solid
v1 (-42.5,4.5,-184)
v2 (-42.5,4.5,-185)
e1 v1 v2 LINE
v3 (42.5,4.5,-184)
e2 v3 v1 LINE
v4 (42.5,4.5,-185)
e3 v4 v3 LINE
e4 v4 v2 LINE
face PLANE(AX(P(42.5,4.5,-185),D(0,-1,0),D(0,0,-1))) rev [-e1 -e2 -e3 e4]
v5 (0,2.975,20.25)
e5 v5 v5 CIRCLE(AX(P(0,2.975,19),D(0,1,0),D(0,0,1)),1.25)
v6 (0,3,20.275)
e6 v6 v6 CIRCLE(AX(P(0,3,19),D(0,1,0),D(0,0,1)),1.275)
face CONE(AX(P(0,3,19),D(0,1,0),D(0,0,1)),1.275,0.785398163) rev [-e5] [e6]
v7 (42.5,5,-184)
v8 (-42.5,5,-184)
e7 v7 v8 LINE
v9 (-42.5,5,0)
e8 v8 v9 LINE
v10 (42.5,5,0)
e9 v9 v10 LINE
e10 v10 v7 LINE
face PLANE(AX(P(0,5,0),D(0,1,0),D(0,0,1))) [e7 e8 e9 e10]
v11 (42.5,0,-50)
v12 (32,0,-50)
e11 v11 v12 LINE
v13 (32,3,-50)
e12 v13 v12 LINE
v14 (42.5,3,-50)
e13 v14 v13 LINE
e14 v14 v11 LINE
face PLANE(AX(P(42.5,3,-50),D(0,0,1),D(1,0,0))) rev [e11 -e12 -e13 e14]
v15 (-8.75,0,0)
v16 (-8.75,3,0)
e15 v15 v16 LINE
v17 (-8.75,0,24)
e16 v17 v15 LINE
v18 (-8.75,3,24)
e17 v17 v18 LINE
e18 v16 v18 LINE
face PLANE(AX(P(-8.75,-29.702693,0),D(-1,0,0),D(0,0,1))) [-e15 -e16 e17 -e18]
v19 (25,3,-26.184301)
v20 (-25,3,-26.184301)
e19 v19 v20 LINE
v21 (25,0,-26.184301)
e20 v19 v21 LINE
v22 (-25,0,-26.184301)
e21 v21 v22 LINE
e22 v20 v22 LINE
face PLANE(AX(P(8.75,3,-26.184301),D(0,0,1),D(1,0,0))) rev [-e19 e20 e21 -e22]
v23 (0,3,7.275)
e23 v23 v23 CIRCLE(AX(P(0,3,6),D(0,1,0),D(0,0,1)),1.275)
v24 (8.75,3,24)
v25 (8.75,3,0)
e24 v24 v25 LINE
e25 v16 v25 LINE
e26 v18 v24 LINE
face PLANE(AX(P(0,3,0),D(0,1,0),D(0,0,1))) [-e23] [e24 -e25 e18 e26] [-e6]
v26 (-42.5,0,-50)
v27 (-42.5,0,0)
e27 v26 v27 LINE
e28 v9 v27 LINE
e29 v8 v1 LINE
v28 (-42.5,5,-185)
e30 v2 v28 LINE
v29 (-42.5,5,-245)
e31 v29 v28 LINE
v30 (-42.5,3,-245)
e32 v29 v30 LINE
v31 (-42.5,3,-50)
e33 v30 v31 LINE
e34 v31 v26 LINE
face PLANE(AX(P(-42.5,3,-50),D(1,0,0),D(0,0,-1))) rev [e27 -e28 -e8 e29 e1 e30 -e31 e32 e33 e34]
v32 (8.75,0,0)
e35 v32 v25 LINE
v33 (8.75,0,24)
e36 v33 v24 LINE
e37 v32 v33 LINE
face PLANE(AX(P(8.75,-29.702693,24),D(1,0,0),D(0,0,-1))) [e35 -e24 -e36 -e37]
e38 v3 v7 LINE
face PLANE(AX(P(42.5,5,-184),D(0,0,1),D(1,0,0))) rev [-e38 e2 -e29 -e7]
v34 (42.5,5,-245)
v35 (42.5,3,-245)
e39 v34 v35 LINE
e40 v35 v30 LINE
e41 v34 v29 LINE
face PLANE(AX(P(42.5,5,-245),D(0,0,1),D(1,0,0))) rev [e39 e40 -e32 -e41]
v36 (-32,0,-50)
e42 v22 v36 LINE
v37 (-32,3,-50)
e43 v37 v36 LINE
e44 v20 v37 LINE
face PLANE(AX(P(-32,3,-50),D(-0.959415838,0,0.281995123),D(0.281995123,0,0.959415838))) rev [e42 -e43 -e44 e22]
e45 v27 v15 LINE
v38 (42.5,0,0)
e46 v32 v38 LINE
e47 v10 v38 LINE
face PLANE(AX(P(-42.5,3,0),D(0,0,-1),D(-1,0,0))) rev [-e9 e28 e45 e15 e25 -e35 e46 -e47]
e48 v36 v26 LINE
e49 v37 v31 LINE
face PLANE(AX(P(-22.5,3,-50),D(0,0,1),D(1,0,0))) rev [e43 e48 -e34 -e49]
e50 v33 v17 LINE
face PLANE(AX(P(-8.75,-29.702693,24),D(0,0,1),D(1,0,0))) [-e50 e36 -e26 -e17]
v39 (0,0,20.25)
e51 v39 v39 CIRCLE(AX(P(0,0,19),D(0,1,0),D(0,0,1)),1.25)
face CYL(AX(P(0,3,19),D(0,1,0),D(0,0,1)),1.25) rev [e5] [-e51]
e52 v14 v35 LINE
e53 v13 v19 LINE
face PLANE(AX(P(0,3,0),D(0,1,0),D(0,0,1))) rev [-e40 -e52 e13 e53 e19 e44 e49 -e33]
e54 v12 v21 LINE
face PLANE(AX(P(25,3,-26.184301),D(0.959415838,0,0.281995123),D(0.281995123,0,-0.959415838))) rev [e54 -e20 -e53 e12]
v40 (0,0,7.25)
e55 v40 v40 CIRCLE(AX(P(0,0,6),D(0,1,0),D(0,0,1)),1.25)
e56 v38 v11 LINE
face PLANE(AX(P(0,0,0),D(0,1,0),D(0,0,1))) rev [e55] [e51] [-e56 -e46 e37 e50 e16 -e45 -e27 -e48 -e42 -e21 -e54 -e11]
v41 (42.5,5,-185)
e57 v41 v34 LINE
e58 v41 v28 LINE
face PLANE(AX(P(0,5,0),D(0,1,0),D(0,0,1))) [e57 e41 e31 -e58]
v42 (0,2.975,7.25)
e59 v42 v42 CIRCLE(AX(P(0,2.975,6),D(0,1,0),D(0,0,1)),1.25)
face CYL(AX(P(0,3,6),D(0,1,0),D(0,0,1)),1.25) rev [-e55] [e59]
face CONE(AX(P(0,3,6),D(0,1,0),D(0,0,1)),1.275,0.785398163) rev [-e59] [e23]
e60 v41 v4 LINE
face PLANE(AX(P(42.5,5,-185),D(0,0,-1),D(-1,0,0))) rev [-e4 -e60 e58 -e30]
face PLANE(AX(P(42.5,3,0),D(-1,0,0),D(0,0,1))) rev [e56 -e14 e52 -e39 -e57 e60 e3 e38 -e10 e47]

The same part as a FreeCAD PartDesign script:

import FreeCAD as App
import Part
import Sketcher
from FreeCAD import Vector
Q = App.Units.Quantity


def add_polygon(sketch, points):
    """Adds a closed chain of lines whose ends are joined by coincident constraints."""
    first, n = sketch.GeometryCount, len(points)
    for a, b in zip(points, points[1:] + points[:1]):
        sketch.addGeometry(Part.LineSegment(App.Vector(*a, 0), App.Vector(*b, 0)), False)
    for i in range(n):
        sketch.addConstraint(Sketcher.Constraint("Coincident", first + i, 2, first + (i + 1) % n, 1))

doc = App.newDocument("Part")
body = doc.addObject("PartDesign::Body", "Body")

sketch1 = body.newObject("Sketcher::SketchObject", "Sketch")
sketch1.AttachmentSupport = (doc.getObject("XZ_Plane"), [""])
sketch1.MapMode = "FlatFace"
add_polygon(sketch1, [(42, 0), (42, -50), (22, -50), (9, -26), (-9, -26), (-22, -50), (-42, -50), (-42, 0)])
sketch1.addConstraint([
    Sketcher.Constraint("Vertical", 0),
    Sketcher.Constraint("Horizontal", 1),
    Sketcher.Constraint("Horizontal", 3),
    Sketcher.Constraint("Horizontal", 5),
    Sketcher.Constraint("Vertical", 6),
    Sketcher.Constraint("Horizontal", 7),
    Sketcher.Constraint("Symmetric", 6, 2, 7, 2, -1, 1),
    Sketcher.Constraint("Symmetric", 1, 2, 4, 2, -2),
    Sketcher.Constraint("Equal", 2, 4),
    Sketcher.Constraint("DistanceX", 1, 2, 1, 1, Q("20 mm")),
    Sketcher.Constraint("DistanceX", 7, 1, 7, 2, Q("85 mm")),
    Sketcher.Constraint("DistanceY", 0, 2, 0, 1, Q("50 mm")),
    Sketcher.Constraint("Angle", 2, Q("120 deg")),
    Sketcher.Constraint("DistanceX", 3, 2, 3, 1, Q("17.5 mm")),
])
pad1 = body.newObject("PartDesign::Pad", "Pad")
pad1.Profile = sketch1
pad1.Length = 3
pad1.Reversed = True

sketch2 = body.newObject("Sketcher::SketchObject", "Sketch001")
sketch2.AttachmentSupport = (doc.getObject("XZ_Plane"), [""])
sketch2.MapMode = "FlatFace"
sketch2.AttachmentOffset = App.Placement(Vector(0, 0, -3), App.Rotation())
add_polygon(sketch2, [(-9, 0), (-9, 24), (9, 24), (9, 0)])
sketch2.addConstraint([
    Sketcher.Constraint("Vertical", 0),
    Sketcher.Constraint("Horizontal", 1),
    Sketcher.Constraint("Vertical", 2),
    Sketcher.Constraint("Horizontal", 3),
    Sketcher.Constraint("Symmetric", 2, 2, 3, 2, -1, 1),
    Sketcher.Constraint("DistanceY", 0, 1, 0, 2, Q("24 mm")),
    Sketcher.Constraint("DistanceX", 1, 1, 1, 2, Q("17.5 mm")),
])
pad2 = body.newObject("PartDesign::Pad", "Pad001")
pad2.Profile = sketch2
pad2.Length = 3

sketch3 = body.newObject("Sketcher::SketchObject", "Sketch002")
sketch3.AttachmentSupport = (doc.getObject("XZ_Plane"), [""])
sketch3.MapMode = "FlatFace"
sketch3.AttachmentOffset = App.Placement(Vector(0, 0, -3), App.Rotation())
sketch3.addGeometry([
    Part.Circle(Vector(0, 19, 0), Vector(0, 0, 1), 1.2),
    Part.Circle(Vector(0, 6, 0), Vector(0, 0, 1), 1.2),
], False)
sketch3.addConstraint([
    Sketcher.Constraint("Equal", 0, 1),
    Sketcher.Constraint("PointOnObject", 0, 3, -2),
    Sketcher.Constraint("PointOnObject", 1, 3, -2),
    Sketcher.Constraint("Diameter", 0, Q("2.5 mm")),
    Sketcher.Constraint("DistanceY", -1, 1, 0, 3, Q("19 mm")),
    Sketcher.Constraint("DistanceY", -1, 1, 1, 3, Q("6 mm")),
])
doc.recompute()
hole = body.newObject("PartDesign::Hole", "Hole")
hole.Profile = sketch3
hole.ThreadType = "None"
hole.Diameter = 2.5
hole.DepthType = "Dimension"
hole.Depth = 6.35
hole.DrillPoint = "Angled"
hole.DrillPointAngle = 118
hole.HoleCutType = "Countersink"
hole.HoleCutDiameter = 2.55
hole.HoleCutCountersinkAngle = 90
hole.Reversed = True

sketch4 = body.newObject("Sketcher::SketchObject", "Sketch003")
sketch4.AttachmentSupport = (doc.getObject("XZ_Plane"), [""])
sketch4.MapMode = "FlatFace"
add_polygon(sketch4, [(-25, -26), (-32, -50), (32, -50), (25, -26)])
sketch4.addConstraint([
    Sketcher.Constraint("Horizontal", 1),
    Sketcher.Constraint("Horizontal", 3),
    Sketcher.Constraint("Equal", 0, 2),
    Sketcher.Constraint("DistanceX", 1, 1, 1, 2, Q("64 mm")),
    Sketcher.Constraint("DistanceX", 3, 2, 3, 1, Q("50 mm")),
    Sketcher.Constraint("DistanceX", 0, 2, -1, 1, Q("32 mm")),
    Sketcher.Constraint("DistanceY", 0, 2, -1, 1, Q("50 mm")),
    Sketcher.Constraint("DistanceY", 2, 2, -1, 1, Q("26.184301 mm")),
])
pocket1 = body.newObject("PartDesign::Pocket", "Pocket")
pocket1.Profile = sketch4
pocket1.Type = "ThroughAll"

sketch5 = body.newObject("Sketcher::SketchObject", "Sketch004")
sketch5.AttachmentSupport = (doc.getObject("XZ_Plane"), [""])
sketch5.MapMode = "FlatFace"
sketch5.AttachmentOffset = App.Placement(Vector(0, 0, -3), App.Rotation())
add_polygon(sketch5, [(-42, -245), (-42, 0), (42, 0), (42, -245)])
sketch5.addConstraint([
    Sketcher.Constraint("Vertical", 0),
    Sketcher.Constraint("Horizontal", 1),
    Sketcher.Constraint("Vertical", 2),
    Sketcher.Constraint("Horizontal", 3),
    Sketcher.Constraint("Symmetric", 0, 2, 1, 2, -1, 1),
    Sketcher.Constraint("DistanceX", 1, 1, 1, 2, Q("85 mm")),
    Sketcher.Constraint("DistanceY", 0, 1, 0, 2, Q("245 mm")),
])
pad3 = body.newObject("PartDesign::Pad", "Pad002")
pad3.Profile = sketch5
pad3.Length = 2
pad3.Reversed = True

sketch6 = body.newObject("Sketcher::SketchObject", "Sketch005")
sketch6.AttachmentSupport = (doc.getObject("YZ_Plane"), [""])
sketch6.MapMode = "FlatFace"
sketch6.AttachmentOffset = App.Placement(Vector(0, 0, -42.5), App.Rotation())
add_polygon(sketch6, [(5, -185), (4.5, -185), (4.5, -184), (5, -184)])
sketch6.addConstraint([
    Sketcher.Constraint("Horizontal", 0),
    Sketcher.Constraint("Vertical", 1),
    Sketcher.Constraint("Horizontal", 2),
    Sketcher.Constraint("Vertical", 3),
    Sketcher.Constraint("DistanceY", 1, 1, 1, 2, Q("1 mm")),
    Sketcher.Constraint("DistanceX", 0, 2, 0, 1, Q("0.5 mm")),
    Sketcher.Constraint("DistanceY", 0, 2, -1, 1, Q("185 mm")),
    Sketcher.Constraint("DistanceX", -1, 1, 2, 2, Q("5 mm")),
])
pocket2 = body.newObject("PartDesign::Pocket", "Pocket001")
pocket2.Profile = sketch6
pocket2.Type = "ThroughAll"
pocket2.Midplane = True

doc.recompute()
